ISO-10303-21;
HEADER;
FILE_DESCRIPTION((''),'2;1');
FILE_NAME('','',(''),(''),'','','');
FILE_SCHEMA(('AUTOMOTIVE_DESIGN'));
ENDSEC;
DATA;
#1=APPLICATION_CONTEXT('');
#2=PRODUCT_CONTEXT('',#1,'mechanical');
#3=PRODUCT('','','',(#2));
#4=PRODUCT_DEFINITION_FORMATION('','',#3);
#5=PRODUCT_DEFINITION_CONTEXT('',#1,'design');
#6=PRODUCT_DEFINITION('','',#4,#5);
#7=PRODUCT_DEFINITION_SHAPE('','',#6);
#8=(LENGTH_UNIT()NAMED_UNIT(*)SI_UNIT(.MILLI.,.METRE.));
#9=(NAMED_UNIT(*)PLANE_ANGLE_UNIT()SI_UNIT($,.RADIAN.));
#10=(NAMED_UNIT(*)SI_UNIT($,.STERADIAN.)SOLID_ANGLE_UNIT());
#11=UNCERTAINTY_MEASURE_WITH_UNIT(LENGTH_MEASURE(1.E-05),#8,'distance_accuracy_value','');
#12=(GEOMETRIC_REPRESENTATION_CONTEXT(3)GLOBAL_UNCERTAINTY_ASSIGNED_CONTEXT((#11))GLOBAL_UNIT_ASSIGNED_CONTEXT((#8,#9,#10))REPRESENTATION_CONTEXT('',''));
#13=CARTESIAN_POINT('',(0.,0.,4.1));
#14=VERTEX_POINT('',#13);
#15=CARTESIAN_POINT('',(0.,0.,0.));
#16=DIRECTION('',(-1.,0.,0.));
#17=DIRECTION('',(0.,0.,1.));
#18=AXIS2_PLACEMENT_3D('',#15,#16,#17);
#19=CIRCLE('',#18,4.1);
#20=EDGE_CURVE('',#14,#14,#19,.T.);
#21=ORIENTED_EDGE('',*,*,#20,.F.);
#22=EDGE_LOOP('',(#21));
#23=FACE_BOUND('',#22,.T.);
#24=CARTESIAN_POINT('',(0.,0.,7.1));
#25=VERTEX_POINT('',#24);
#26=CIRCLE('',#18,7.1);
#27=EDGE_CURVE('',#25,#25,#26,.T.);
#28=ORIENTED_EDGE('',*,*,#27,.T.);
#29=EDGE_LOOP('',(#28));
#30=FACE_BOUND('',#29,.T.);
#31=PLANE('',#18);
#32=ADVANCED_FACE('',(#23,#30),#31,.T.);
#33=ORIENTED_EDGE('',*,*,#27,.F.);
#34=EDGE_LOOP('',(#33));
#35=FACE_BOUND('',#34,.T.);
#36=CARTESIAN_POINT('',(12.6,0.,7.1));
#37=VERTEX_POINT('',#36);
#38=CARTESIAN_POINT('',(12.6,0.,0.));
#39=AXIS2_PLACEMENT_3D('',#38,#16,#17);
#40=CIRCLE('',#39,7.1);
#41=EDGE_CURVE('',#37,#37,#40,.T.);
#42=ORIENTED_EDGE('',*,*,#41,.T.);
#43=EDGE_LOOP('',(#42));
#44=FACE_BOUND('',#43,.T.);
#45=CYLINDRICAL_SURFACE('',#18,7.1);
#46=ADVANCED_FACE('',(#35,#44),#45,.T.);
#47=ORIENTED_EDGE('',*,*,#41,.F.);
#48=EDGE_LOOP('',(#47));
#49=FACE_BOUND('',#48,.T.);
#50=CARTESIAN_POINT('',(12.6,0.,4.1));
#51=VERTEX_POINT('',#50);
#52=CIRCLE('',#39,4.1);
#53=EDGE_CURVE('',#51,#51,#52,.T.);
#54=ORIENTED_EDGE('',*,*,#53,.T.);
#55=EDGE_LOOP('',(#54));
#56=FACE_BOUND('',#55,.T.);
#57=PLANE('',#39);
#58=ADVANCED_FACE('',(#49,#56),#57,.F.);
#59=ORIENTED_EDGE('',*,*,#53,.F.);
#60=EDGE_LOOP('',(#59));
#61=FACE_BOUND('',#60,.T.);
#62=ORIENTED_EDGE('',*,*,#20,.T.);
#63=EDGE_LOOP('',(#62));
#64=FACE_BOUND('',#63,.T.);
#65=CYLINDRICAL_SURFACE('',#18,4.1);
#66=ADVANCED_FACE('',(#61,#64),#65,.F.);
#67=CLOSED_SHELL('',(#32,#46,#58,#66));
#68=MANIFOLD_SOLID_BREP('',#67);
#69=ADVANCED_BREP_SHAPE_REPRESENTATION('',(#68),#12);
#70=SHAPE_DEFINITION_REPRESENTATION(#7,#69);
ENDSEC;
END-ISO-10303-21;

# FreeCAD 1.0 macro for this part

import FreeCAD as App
import Part
import Sketcher
from FreeCAD import Vector


def add_polygon(sketch, points):
    """Adds a closed chain of lines whose ends are joined by coincident constraints."""
    first, n = sketch.GeometryCount, len(points)
    for a, b in zip(points, points[1:] + points[:1]):
        sketch.addGeometry(Part.LineSegment(App.Vector(*a, 0), App.Vector(*b, 0)), False)
    for i in range(n):
        sketch.addConstraint(Sketcher.Constraint("Coincident", first + i, 2, first + (i + 1) % n, 1))

doc = App.newDocument("Part")
params = doc.addObject("Spreadsheet::Sheet", "Params")
for row, (alias, value) in enumerate([
    ("sketch1_height", "3 mm"),
    ("sketch1_width", "12.6 mm"),
    ("revolution_angle", "360 deg"),
], start=1):
    params.set(f"A{row}", alias)
    params.set(f"B{row}", "=" + value)
    params.setAlias(f"B{row}", alias)

body = doc.addObject("PartDesign::Body", "Body")

sketch1 = body.newObject("Sketcher::SketchObject", "Sketch")
sketch1.AttachmentSupport = (doc.getObject("XZ_Plane"), [""])
sketch1.MapMode = "FlatFace"
add_polygon(sketch1, [(0, 4.1), (0, 7.1), (12.6, 7.1), (12.6, 4.1)])
sketch1.addConstraint([
    Sketcher.Constraint("Vertical", 0),
    Sketcher.Constraint("Horizontal", 1),
    Sketcher.Constraint("Vertical", 2),
    Sketcher.Constraint("Horizontal", 3),
    Sketcher.Constraint("PointOnObject", 0, 2, -2),
    Sketcher.Constraint("DistanceY", 0, 1, 0, 2, 3.0),
    Sketcher.Constraint("DistanceX", 1, 1, 1, 2, 12.6),
    Sketcher.Constraint("DistanceY", -1, 1, 0, 2, 7.1),
])
sketch1.setExpression("Constraints[9]", "Params.sketch1_height")
sketch1.setExpression("Constraints[10]", "Params.sketch1_width")
revolution = body.newObject("PartDesign::Revolution", "Revolution")
revolution.Profile = sketch1
revolution.ReferenceAxis = (sketch1, ["H_Axis"])
revolution.setExpression("Angle", "Params.revolution_angle")

doc.recompute()
